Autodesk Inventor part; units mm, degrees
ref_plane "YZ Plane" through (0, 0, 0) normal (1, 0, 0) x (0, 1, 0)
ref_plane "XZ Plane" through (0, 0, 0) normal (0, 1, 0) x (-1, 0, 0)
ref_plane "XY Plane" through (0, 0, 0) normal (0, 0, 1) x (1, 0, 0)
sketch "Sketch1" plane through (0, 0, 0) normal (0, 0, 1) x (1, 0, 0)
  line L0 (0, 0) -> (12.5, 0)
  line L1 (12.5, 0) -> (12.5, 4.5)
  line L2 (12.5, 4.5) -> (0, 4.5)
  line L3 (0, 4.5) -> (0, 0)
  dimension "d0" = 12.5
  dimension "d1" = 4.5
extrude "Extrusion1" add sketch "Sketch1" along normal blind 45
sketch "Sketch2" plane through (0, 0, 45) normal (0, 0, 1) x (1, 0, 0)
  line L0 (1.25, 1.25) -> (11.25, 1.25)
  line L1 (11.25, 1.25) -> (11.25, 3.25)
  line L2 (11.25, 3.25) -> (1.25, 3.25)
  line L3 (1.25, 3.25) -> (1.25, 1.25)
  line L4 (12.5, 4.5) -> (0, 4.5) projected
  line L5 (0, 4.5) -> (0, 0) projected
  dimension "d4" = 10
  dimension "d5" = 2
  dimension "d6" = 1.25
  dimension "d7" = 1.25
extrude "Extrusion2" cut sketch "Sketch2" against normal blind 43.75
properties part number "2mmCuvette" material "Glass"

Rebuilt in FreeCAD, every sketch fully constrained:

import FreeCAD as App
import Part
import Sketcher
from FreeCAD import Vector

doc = App.newDocument("Part")
body = doc.addObject("PartDesign::Body", "Body")

sketch1 = body.newObject("Sketcher::SketchObject", "Sketch")
sketch1.AttachmentSupport = (doc.getObject("XY_Plane"), [""])
sketch1.MapMode = "FlatFace"
sketch1.addGeometry([
    Part.LineSegment(Vector(0, 4.5, 0), Vector(0, 0, 0)),
    Part.LineSegment(Vector(0, 0, 0), Vector(12.5, 0, 0)),
    Part.LineSegment(Vector(12.5, 0, 0), Vector(12.5, 4.5, 0)),
    Part.LineSegment(Vector(12.5, 4.5, 0), Vector(0, 4.5, 0)),
], False)
sketch1.addConstraint([
    Sketcher.Constraint("Coincident", 0, 2, 1, 1),
    Sketcher.Constraint("Coincident", 1, 2, 2, 1),
    Sketcher.Constraint("Coincident", 2, 2, 3, 1),
    Sketcher.Constraint("Coincident", 3, 2, 0, 1),
    Sketcher.Constraint("Vertical", 0),
    Sketcher.Constraint("Horizontal", 1),
    Sketcher.Constraint("Vertical", 2),
    Sketcher.Constraint("Horizontal", 3),
    Sketcher.Constraint("Coincident", 0, 2, -1, 1),
    Sketcher.Constraint("DistanceX", 1, 1, 1, 2, 12.5),
    Sketcher.Constraint("DistanceY", 0, 2, 0, 1, 4.5),
])
pad1 = body.newObject("PartDesign::Pad", "Pad")
pad1.Profile = sketch1
pad1.Length = 45

sketch2 = body.newObject("Sketcher::SketchObject", "Sketch001")
sketch2.AttachmentSupport = (doc.getObject("XY_Plane"), [""])
sketch2.MapMode = "FlatFace"
sketch2.AttachmentOffset = App.Placement(Vector(0, 0, 45), App.Rotation())
sketch2.addGeometry([
    Part.LineSegment(Vector(1.25, 3.25, 0), Vector(1.25, 1.25, 0)),
    Part.LineSegment(Vector(1.25, 1.25, 0), Vector(11.25, 1.25, 0)),
    Part.LineSegment(Vector(11.25, 1.25, 0), Vector(11.25, 3.25, 0)),
    Part.LineSegment(Vector(11.25, 3.25, 0), Vector(1.25, 3.25, 0)),
], False)
sketch2.addConstraint([
    Sketcher.Constraint("Coincident", 0, 2, 1, 1),
    Sketcher.Constraint("Coincident", 1, 2, 2, 1),
    Sketcher.Constraint("Coincident", 2, 2, 3, 1),
    Sketcher.Constraint("Coincident", 3, 2, 0, 1),
    Sketcher.Constraint("Vertical", 0),
    Sketcher.Constraint("Horizontal", 1),
    Sketcher.Constraint("Vertical", 2),
    Sketcher.Constraint("Horizontal", 3),
    Sketcher.Constraint("DistanceX", 1, 1, 1, 2, 10.0),
    Sketcher.Constraint("DistanceY", 0, 2, 0, 1, 2.0),
    Sketcher.Constraint("DistanceX", -1, 1, 0, 2, 1.25),
    Sketcher.Constraint("DistanceY", -1, 1, 0, 2, 1.25),
])
pocket1 = body.newObject("PartDesign::Pocket", "Pocket")
pocket1.Profile = sketch2
pocket1.Length = 43.75

doc.recompute()
